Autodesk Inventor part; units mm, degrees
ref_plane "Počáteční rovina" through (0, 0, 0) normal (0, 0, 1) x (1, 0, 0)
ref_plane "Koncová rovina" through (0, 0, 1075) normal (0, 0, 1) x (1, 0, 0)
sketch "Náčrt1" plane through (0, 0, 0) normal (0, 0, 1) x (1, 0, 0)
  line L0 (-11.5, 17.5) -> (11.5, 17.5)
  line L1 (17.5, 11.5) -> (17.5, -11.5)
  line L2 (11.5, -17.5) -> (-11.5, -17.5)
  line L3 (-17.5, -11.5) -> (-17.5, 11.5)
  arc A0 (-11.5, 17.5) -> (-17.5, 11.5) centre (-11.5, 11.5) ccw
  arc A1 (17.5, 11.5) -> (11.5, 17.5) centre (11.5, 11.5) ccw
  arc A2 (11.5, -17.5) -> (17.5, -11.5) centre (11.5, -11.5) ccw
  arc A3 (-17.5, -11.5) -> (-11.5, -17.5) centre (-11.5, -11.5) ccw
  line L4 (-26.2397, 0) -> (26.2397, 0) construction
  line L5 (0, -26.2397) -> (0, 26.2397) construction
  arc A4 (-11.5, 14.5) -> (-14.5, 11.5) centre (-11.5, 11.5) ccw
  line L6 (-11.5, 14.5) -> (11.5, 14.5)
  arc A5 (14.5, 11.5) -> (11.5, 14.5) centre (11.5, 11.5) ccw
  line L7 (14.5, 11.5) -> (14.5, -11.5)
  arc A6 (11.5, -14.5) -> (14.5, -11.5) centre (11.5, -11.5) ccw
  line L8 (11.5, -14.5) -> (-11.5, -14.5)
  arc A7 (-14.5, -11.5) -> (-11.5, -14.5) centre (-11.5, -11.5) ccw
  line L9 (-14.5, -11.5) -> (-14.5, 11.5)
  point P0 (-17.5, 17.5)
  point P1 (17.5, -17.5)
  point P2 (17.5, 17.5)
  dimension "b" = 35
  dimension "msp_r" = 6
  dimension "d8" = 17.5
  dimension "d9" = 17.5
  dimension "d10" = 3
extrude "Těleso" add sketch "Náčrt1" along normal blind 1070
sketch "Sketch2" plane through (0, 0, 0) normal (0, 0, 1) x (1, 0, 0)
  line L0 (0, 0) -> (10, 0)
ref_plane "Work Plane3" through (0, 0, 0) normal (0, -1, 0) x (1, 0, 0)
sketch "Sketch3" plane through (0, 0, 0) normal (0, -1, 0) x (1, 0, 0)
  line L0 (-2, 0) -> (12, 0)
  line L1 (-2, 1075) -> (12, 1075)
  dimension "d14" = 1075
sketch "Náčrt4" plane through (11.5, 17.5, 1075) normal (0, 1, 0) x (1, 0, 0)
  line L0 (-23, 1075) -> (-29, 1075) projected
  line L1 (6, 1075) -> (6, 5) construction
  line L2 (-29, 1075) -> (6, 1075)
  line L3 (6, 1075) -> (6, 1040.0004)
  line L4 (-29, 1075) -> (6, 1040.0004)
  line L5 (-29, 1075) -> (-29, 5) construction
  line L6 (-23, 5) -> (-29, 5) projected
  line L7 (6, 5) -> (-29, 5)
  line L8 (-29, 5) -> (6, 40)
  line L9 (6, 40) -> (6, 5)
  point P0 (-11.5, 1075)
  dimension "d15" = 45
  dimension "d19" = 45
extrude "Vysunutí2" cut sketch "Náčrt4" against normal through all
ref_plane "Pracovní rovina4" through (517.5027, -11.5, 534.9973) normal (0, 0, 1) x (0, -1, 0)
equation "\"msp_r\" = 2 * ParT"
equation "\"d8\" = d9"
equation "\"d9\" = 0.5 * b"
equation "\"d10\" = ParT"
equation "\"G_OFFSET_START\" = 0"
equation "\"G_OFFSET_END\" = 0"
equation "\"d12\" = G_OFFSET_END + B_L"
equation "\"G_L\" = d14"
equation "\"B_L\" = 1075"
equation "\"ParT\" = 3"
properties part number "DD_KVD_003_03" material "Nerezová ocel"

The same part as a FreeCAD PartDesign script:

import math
import FreeCAD as App
import Part
import Sketcher
Q = App.Units.Quantity

doc = App.newDocument("Part")
body = doc.addObject("PartDesign::Body", "Body")

sketch1 = body.newObject("Sketcher::SketchObject", "Sketch")
sketch1.AttachmentSupport = (doc.getObject("XY_Plane"), [""])
sketch1.MapMode = "FlatFace"
sketch1.addGeometry([
    Part.LineSegment(App.Vector(11.5, 17.5, 0), App.Vector(-11.5, 17.5, 0)),
    Part.ArcOfCircle(Part.Circle(App.Vector(-11.5, 11.5, 0), App.Vector(0, 0, 1), 6), math.radians(90), math.radians(180)),
    Part.LineSegment(App.Vector(-17.5, 11.5, 0), App.Vector(-17.5, -11.5, 0)),
    Part.ArcOfCircle(Part.Circle(App.Vector(-11.5, -11.5, 0), App.Vector(0, 0, 1), 6), math.radians(180), math.radians(270)),
    Part.LineSegment(App.Vector(-11.5, -17.5, 0), App.Vector(11.5, -17.5, 0)),
    Part.ArcOfCircle(Part.Circle(App.Vector(11.5, -11.5, 0), App.Vector(0, 0, 1), 6), math.radians(-90), math.radians(0)),
    Part.LineSegment(App.Vector(17.5, -11.5, 0), App.Vector(17.5, 11.5, 0)),
    Part.ArcOfCircle(Part.Circle(App.Vector(11.5, 11.5, 0), App.Vector(0, 0, 1), 6), math.radians(0), math.radians(90)),
    Part.ArcOfCircle(Part.Circle(App.Vector(-11.5, 11.5, 0), App.Vector(0, 0, 1), 3), math.radians(90), math.radians(180)),
    Part.LineSegment(App.Vector(-11.5, 14.5, 0), App.Vector(11.5, 14.5, 0)),
    Part.ArcOfCircle(Part.Circle(App.Vector(11.5, 11.5, 0), App.Vector(0, 0, 1), 3), math.radians(0), math.radians(90)),
    Part.LineSegment(App.Vector(14.5, 11.5, 0), App.Vector(14.5, -11.5, 0)),
    Part.ArcOfCircle(Part.Circle(App.Vector(11.5, -11.5, 0), App.Vector(0, 0, 1), 3), math.radians(-90), math.radians(0)),
    Part.LineSegment(App.Vector(11.5, -14.5, 0), App.Vector(-11.5, -14.5, 0)),
    Part.ArcOfCircle(Part.Circle(App.Vector(-11.5, -11.5, 0), App.Vector(0, 0, 1), 3), math.radians(180), math.radians(270)),
    Part.LineSegment(App.Vector(-14.5, -11.5, 0), App.Vector(-14.5, 11.5, 0)),
], False)
sketch1.addConstraint([
    Sketcher.Constraint("Tangent", 0, 2, 1, 1),
    Sketcher.Constraint("Tangent", 1, 2, 2, 1),
    Sketcher.Constraint("Tangent", 2, 2, 3, 1),
    Sketcher.Constraint("Tangent", 3, 2, 4, 1),
    Sketcher.Constraint("Tangent", 4, 2, 5, 1),
    Sketcher.Constraint("Tangent", 5, 2, 6, 1),
    Sketcher.Constraint("Tangent", 6, 2, 7, 1),
    Sketcher.Constraint("Tangent", 7, 2, 0, 1),
    Sketcher.Constraint("Tangent", 8, 1, 9, 1),
    Sketcher.Constraint("Tangent", 9, 2, 10, 2),
    Sketcher.Constraint("Tangent", 10, 1, 11, 1),
    Sketcher.Constraint("Tangent", 11, 2, 12, 2),
    Sketcher.Constraint("Tangent", 12, 1, 13, 1),
    Sketcher.Constraint("Tangent", 13, 2, 14, 2),
    Sketcher.Constraint("Tangent", 14, 1, 15, 1),
    Sketcher.Constraint("Tangent", 15, 2, 8, 2),
    Sketcher.Constraint("Horizontal", 0),
    Sketcher.Constraint("Vertical", 2),
    Sketcher.Constraint("Horizontal", 4),
    Sketcher.Constraint("Vertical", 6),
    Sketcher.Constraint("Horizontal", 9),
    Sketcher.Constraint("Vertical", 11),
    Sketcher.Constraint("Horizontal", 13),
    Sketcher.Constraint("Vertical", 15),
    Sketcher.Constraint("Coincident", 8, 3, 1, 3),
    Sketcher.Constraint("Coincident", 10, 3, 7, 3),
    Sketcher.Constraint("Coincident", 12, 3, 5, 3),
    Sketcher.Constraint("Equal", 1, 3),
    Sketcher.Constraint("Equal", 3, 5),
    Sketcher.Constraint("Equal", 5, 7),
    Sketcher.Constraint("Equal", 12, 14),
    Sketcher.Constraint("Symmetric", 1, 3, 5, 3, -1, 1),
    Sketcher.Constraint("Equal", 13, 2),
    Sketcher.Constraint("Radius", 1, Q("6 mm")),
    Sketcher.Constraint("Radius", 8, Q("3 mm")),
    Sketcher.Constraint("DistanceY", -1, 1, 0, 2, Q("17.5 mm")),
])
pad1 = body.newObject("PartDesign::Pad", "Pad")
pad1.Profile = sketch1
pad1.Length = 1070

sketch2 = body.newObject("Sketcher::SketchObject", "Sketch001")
sketch2.AttachmentSupport = (doc.getObject("XZ_Plane"), [""])
sketch2.MapMode = "FlatFace"
sketch2.AttachmentOffset = App.Placement(App.Vector(0, 0, -17.5), App.Rotation())
sketch2.addGeometry([
    Part.LineSegment(App.Vector(17.5, 0, 0), App.Vector(-17.5, 0, 0)),
    Part.LineSegment(App.Vector(-17.5, 0, 0), App.Vector(17.5, 34.9996, 0)),
    Part.LineSegment(App.Vector(17.5, 34.9996, 0), App.Vector(17.5, 0, 0)),
    Part.LineSegment(App.Vector(-17.5, 1070, 0), App.Vector(17.5, 1070, 0)),
    Part.LineSegment(App.Vector(17.5, 1070, 0), App.Vector(17.5, 1035, 0)),
    Part.LineSegment(App.Vector(17.5, 1035, 0), App.Vector(-17.5, 1070, 0)),
], False)
sketch2.addConstraint([
    Sketcher.Constraint("Coincident", 0, 2, 1, 1),
    Sketcher.Constraint("Coincident", 1, 2, 2, 1),
    Sketcher.Constraint("Coincident", 2, 2, 0, 1),
    Sketcher.Constraint("Coincident", 3, 2, 4, 1),
    Sketcher.Constraint("Coincident", 4, 2, 5, 1),
    Sketcher.Constraint("Coincident", 5, 2, 3, 1),
    Sketcher.Constraint("Horizontal", 0),
    Sketcher.Constraint("Vertical", 2),
    Sketcher.Constraint("Horizontal", 3),
    Sketcher.Constraint("Vertical", 4),
    Sketcher.Constraint("Symmetric", 0, 2, 2, 2, -1, 1),
    Sketcher.Constraint("Perpendicular", 1, 5),
    Sketcher.Constraint("Vertical", 2, 2, 3, 2),
    Sketcher.Constraint("Vertical", 0, 2, 5, 2),
    Sketcher.Constraint("Equal", 3, 4),
    Sketcher.Constraint("DistanceX", 0, 2, 0, 1, Q("35 mm")),
    Sketcher.Constraint("DistanceY", -1, 1, 3, 2, Q("1070 mm")),
])
pocket1 = body.newObject("PartDesign::Pocket", "Pocket")
pocket1.Profile = sketch2
pocket1.Type = "ThroughAll"
pocket1.Reversed = True

doc.recompute()
